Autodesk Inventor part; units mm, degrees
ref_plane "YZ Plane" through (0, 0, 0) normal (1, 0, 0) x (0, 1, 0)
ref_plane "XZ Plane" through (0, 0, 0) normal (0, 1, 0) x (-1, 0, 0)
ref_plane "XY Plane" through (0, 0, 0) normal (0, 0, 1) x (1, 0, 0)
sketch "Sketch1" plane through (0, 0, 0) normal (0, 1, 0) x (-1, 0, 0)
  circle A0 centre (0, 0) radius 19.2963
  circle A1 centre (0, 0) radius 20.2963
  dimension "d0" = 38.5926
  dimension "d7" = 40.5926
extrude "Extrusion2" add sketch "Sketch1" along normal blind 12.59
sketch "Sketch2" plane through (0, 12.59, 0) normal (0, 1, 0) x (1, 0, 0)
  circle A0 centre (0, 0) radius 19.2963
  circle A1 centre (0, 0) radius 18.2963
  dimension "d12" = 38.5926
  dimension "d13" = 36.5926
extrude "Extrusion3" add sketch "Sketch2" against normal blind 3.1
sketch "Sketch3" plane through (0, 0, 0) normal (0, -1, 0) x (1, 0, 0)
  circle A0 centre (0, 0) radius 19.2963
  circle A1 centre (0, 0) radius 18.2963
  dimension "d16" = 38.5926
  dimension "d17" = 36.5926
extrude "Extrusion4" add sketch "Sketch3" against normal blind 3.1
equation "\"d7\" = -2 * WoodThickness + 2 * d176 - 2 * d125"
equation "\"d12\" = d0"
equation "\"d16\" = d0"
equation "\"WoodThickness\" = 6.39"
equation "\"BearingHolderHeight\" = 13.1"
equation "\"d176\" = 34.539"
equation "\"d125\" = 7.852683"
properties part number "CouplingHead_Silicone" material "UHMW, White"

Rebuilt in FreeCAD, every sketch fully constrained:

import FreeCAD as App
import Part
import Sketcher
Q = App.Units.Quantity

doc = App.newDocument("Part")
body = doc.addObject("PartDesign::Body", "Body")

sketch1 = body.newObject("Sketcher::SketchObject", "Sketch")
sketch1.AttachmentSupport = (doc.getObject("XZ_Plane"), [""])
sketch1.MapMode = "FlatFace"
sketch1.addGeometry([
    Part.Circle(App.Vector(0, 0, 0), App.Vector(0, 0, 1), 20.2963),
    Part.Circle(App.Vector(0, 0, 0), App.Vector(0, 0, 1), 19.2963),
], False)
sketch1.addConstraint([
    Sketcher.Constraint("Coincident", 0, 3, -1, 1),
    Sketcher.Constraint("Coincident", 1, 3, -1, 1),
    Sketcher.Constraint("Diameter", 0, Q("40.5926 mm")),
    Sketcher.Constraint("Diameter", 1, Q("38.5926 mm")),
])
pad1 = body.newObject("PartDesign::Pad", "Pad")
pad1.Profile = sketch1
pad1.Length = 12.59
pad1.Reversed = True

sketch2 = body.newObject("Sketcher::SketchObject", "Sketch001")
sketch2.AttachmentSupport = (doc.getObject("XZ_Plane"), [""])
sketch2.MapMode = "FlatFace"
sketch2.AttachmentOffset = App.Placement(App.Vector(0, 0, -12.59), App.Rotation())
sketch2.addGeometry([
    Part.Circle(App.Vector(0, 0, 0), App.Vector(0, 0, 1), 19.2963),
    Part.Circle(App.Vector(0, 0, 0), App.Vector(0, 0, 1), 18.2963),
], False)
sketch2.addConstraint([
    Sketcher.Constraint("Coincident", 0, 3, -1, 1),
    Sketcher.Constraint("Coincident", 1, 3, -1, 1),
    Sketcher.Constraint("Diameter", 0, Q("38.5926 mm")),
    Sketcher.Constraint("Diameter", 1, Q("36.5926 mm")),
])
pad2 = body.newObject("PartDesign::Pad", "Pad001")
pad2.Profile = sketch2
pad2.Length = 3.1

sketch3 = body.newObject("Sketcher::SketchObject", "Sketch002")
sketch3.AttachmentSupport = (doc.getObject("XZ_Plane"), [""])
sketch3.MapMode = "FlatFace"
sketch3.addGeometry([
    Part.Circle(App.Vector(0, 0, 0), App.Vector(0, 0, 1), 19.2963),
    Part.Circle(App.Vector(0, 0, 0), App.Vector(0, 0, 1), 18.2963),
], False)
sketch3.addConstraint([
    Sketcher.Constraint("Coincident", 0, 3, -1, 1),
    Sketcher.Constraint("Coincident", 1, 3, -1, 1),
    Sketcher.Constraint("Diameter", 0, Q("38.5926 mm")),
    Sketcher.Constraint("Diameter", 1, Q("36.5926 mm")),
])
pad3 = body.newObject("PartDesign::Pad", "Pad002")
pad3.Profile = sketch3
pad3.Length = 3.1
pad3.Reversed = True

doc.recompute()
